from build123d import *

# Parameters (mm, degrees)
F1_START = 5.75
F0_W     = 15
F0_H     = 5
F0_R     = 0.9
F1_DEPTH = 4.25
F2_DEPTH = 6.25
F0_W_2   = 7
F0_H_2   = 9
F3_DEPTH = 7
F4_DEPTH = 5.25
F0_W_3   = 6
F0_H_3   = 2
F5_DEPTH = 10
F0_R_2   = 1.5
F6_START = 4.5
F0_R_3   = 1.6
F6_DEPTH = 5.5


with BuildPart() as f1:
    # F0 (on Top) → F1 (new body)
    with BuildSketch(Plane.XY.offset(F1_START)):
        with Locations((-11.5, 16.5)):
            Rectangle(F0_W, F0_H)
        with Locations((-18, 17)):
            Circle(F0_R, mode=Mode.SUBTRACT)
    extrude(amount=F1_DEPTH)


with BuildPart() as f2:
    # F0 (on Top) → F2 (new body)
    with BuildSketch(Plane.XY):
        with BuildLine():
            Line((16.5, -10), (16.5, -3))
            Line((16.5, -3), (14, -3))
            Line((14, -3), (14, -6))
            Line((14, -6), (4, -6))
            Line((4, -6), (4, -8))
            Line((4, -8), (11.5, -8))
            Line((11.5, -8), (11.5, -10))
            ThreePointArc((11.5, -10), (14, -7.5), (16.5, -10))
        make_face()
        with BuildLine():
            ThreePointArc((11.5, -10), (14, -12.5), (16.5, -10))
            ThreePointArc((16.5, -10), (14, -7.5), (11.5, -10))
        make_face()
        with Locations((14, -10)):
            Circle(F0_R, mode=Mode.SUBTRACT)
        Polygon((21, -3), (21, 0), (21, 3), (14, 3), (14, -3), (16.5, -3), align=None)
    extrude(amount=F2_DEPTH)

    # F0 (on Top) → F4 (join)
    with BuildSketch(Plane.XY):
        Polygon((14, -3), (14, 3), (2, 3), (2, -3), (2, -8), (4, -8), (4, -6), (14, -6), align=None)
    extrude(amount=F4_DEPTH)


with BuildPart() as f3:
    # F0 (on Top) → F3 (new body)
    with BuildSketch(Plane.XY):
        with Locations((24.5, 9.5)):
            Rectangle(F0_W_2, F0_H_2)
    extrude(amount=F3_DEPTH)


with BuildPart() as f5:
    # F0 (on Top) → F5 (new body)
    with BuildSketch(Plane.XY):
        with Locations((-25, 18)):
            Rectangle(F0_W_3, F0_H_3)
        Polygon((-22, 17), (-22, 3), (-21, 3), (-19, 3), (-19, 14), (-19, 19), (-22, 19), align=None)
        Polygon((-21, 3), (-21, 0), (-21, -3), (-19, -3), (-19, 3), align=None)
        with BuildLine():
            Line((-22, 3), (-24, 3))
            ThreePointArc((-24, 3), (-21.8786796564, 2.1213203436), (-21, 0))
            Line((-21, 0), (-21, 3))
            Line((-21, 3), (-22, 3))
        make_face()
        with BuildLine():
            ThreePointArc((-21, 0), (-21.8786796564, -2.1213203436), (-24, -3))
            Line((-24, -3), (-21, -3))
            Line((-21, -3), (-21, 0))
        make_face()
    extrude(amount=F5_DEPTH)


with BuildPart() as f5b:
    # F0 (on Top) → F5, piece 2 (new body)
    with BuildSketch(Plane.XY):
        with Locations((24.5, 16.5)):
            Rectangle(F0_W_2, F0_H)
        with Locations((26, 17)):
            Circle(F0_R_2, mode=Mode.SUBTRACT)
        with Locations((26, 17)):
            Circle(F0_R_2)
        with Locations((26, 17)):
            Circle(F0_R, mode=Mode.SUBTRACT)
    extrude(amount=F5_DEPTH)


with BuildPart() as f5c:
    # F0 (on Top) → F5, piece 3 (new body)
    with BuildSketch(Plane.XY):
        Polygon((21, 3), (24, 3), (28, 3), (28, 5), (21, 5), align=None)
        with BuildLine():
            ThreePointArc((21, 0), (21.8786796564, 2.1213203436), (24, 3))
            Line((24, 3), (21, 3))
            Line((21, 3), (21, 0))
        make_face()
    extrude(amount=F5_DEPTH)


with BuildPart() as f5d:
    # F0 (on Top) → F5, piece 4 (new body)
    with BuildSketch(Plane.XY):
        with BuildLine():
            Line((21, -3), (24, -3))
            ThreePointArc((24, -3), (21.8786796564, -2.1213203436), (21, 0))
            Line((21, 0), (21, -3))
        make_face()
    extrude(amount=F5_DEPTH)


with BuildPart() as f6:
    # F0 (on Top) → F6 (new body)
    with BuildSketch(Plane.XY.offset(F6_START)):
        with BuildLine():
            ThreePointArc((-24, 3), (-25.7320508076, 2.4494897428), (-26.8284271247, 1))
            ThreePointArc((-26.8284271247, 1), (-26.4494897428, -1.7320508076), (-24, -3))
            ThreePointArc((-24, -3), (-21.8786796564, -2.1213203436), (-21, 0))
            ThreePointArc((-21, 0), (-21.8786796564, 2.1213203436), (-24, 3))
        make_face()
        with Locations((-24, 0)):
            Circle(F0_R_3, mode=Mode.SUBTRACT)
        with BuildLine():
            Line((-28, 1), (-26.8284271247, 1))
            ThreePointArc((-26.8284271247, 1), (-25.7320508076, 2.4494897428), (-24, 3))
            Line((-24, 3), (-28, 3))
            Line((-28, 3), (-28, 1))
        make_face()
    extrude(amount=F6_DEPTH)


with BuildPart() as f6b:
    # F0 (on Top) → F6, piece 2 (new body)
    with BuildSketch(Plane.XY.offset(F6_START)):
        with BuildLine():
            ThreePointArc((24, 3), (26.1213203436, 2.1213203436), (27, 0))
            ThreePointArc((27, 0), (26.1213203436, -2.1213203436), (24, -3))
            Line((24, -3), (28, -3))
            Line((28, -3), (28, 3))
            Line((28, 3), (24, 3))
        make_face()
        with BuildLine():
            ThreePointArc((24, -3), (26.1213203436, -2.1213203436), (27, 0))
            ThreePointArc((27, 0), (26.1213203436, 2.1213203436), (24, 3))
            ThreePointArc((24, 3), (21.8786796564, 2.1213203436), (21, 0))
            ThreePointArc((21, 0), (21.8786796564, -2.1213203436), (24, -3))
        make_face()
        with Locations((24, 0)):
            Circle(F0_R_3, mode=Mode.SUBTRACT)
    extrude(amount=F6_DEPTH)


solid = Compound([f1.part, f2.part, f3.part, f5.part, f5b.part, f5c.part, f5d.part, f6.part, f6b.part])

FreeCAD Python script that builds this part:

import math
import FreeCAD as App
import Part
import Sketcher
Q = App.Units.Quantity

doc = App.newDocument("Part")
body = doc.addObject("PartDesign::Body", "Body")

# Sketch on XY plane
sketch1 = body.newObject("Sketcher::SketchObject", "Sketch")
sketch1.AttachmentSupport = (doc.getObject("XY_Plane"), [""])
sketch1.MapMode = "FlatFace"
sketch1.AttachmentOffset = App.Placement(App.Vector(0, 0, 5.75), App.Rotation())
sketch1.addGeometry([
    Part.LineSegment(App.Vector(-19, 19, 0), App.Vector(-19, 14, 0)),  # 0
    Part.LineSegment(App.Vector(-19, 14, 0), App.Vector(-4, 14, 0)),  # 1
    Part.LineSegment(App.Vector(-4, 14, 0), App.Vector(-4, 19, 0)),  # 2
    Part.LineSegment(App.Vector(-4, 19, 0), App.Vector(-19, 19, 0)),  # 3
    Part.Circle(App.Vector(-18, 17, 0), App.Vector(0, 0, 1), 0.9),  # 4
], False)
sketch1.addConstraint([
    Sketcher.Constraint("Coincident", 0, 2, 1, 1),
    Sketcher.Constraint("Coincident", 1, 2, 2, 1),
    Sketcher.Constraint("Coincident", 2, 2, 3, 1),
    Sketcher.Constraint("Coincident", 3, 2, 0, 1),
    Sketcher.Constraint("Vertical", 0),
    Sketcher.Constraint("Horizontal", 1),
    Sketcher.Constraint("Vertical", 2),
    Sketcher.Constraint("Horizontal", 3),
    Sketcher.Constraint("Diameter", 4, Q("1.8 mm")),
    Sketcher.Constraint("DistanceX", 1, 1, 1, 2, Q("15 mm")),
    Sketcher.Constraint("DistanceY", 0, 2, 0, 1, Q("5 mm")),
    Sketcher.Constraint("DistanceX", 4, 3, -1, 1, Q("18 mm")),
    Sketcher.Constraint("DistanceY", -1, 1, 4, 3, Q("17 mm")),
    Sketcher.Constraint("DistanceX", 0, 2, -1, 1, Q("19 mm")),
    Sketcher.Constraint("DistanceY", -1, 1, 0, 2, Q("14 mm")),
])
pad1 = body.newObject("PartDesign::Pad", "Pad")
pad1.Profile = sketch1
pad1.Length = 4.25
body2 = doc.addObject("PartDesign::Body", "Body001")

# Sketch on XY plane
sketch2 = body2.newObject("Sketcher::SketchObject", "Sketch001")
sketch2.AttachmentSupport = (doc.getObject("XY_Plane001"), [""])
sketch2.MapMode = "FlatFace"
sketch2.addGeometry([
    Part.LineSegment(App.Vector(16.5, -10, 0), App.Vector(16.5, -3, 0)),  # 0
    Part.LineSegment(App.Vector(16.5, -3, 0), App.Vector(21, -3, 0)),  # 1
    Part.LineSegment(App.Vector(21, -3, 0), App.Vector(21, 3, 0)),  # 2
    Part.LineSegment(App.Vector(21, 3, 0), App.Vector(14, 3, 0)),  # 3
    Part.LineSegment(App.Vector(14, 3, 0), App.Vector(14, -6, 0)),  # 4
    Part.LineSegment(App.Vector(14, -6, 0), App.Vector(4, -6, 0)),  # 5
    Part.LineSegment(App.Vector(4, -6, 0), App.Vector(4, -8, 0)),  # 6
    Part.LineSegment(App.Vector(4, -8, 0), App.Vector(11.5, -8, 0)),  # 7
    Part.LineSegment(App.Vector(11.5, -8, 0), App.Vector(11.5, -10, 0)),  # 8
    Part.ArcOfCircle(Part.Circle(App.Vector(14, -10, 0), App.Vector(0, 0, 1), 2.5), math.radians(180), math.radians(360)),  # 9
    Part.Circle(App.Vector(14, -10, 0), App.Vector(0, 0, 1), 0.9),  # 10
], False)
sketch2.addConstraint([
    Sketcher.Constraint("Coincident", 0, 2, 1, 1),
    Sketcher.Constraint("Coincident", 1, 2, 2, 1),
    Sketcher.Constraint("Coincident", 2, 2, 3, 1),
    Sketcher.Constraint("Coincident", 3, 2, 4, 1),
    Sketcher.Constraint("Coincident", 4, 2, 5, 1),
    Sketcher.Constraint("Coincident", 5, 2, 6, 1),
    Sketcher.Constraint("Coincident", 6, 2, 7, 1),
    Sketcher.Constraint("Coincident", 7, 2, 8, 1),
    Sketcher.Constraint("Tangent", 8, 2, 9, 1),
    Sketcher.Constraint("Tangent", 9, 2, 0, 1),
    Sketcher.Constraint("Vertical", 0),
    Sketcher.Constraint("Horizontal", 1),
    Sketcher.Constraint("Vertical", 2),
    Sketcher.Constraint("Horizontal", 3),
    Sketcher.Constraint("Vertical", 4),
    Sketcher.Constraint("Horizontal", 5),
    Sketcher.Constraint("Vertical", 6),
    Sketcher.Constraint("Horizontal", 7),
    Sketcher.Constraint("Vertical", 8),
    Sketcher.Constraint("Coincident", 10, 3, 9, 3),
    Sketcher.Constraint("Vertical", 10, 3, 3, 2),
    Sketcher.Constraint("Equal", 3, 0),
    Sketcher.Constraint("Equal", 6, 8),
    Sketcher.Constraint("Diameter", 10, Q("1.8 mm")),
    Sketcher.Constraint("Radius", 9, Q("2.5 mm")),
    Sketcher.Constraint("DistanceX", 3, 2, 3, 1, Q("7 mm")),
    Sketcher.Constraint("DistanceX", 5, 2, 5, 1, Q("10 mm")),
    Sketcher.Constraint("DistanceY", 2, 1, 2, 2, Q("6 mm")),
    Sketcher.Constraint("DistanceY", 4, 2, 4, 1, Q("9 mm")),
    Sketcher.Constraint("DistanceX", -1, 1, 9, 3, Q("14 mm")),
    Sketcher.Constraint("DistanceY", 9, 3, -1, 1, Q("10 mm")),
])
pad2 = body2.newObject("PartDesign::Pad", "Pad001")
pad2.Profile = sketch2
pad2.Length = 6.25

# Sketch on XY plane
sketch3 = body2.newObject("Sketcher::SketchObject", "Sketch002")
sketch3.AttachmentSupport = (doc.getObject("XY_Plane001"), [""])
sketch3.MapMode = "FlatFace"
sketch3.addGeometry([
    Part.LineSegment(App.Vector(14, 3, 0), App.Vector(2, 3, 0)),  # 0
    Part.LineSegment(App.Vector(2, 3, 0), App.Vector(2, -8, 0)),  # 1
    Part.LineSegment(App.Vector(2, -8, 0), App.Vector(4, -8, 0)),  # 2
    Part.LineSegment(App.Vector(4, -8, 0), App.Vector(4, -6, 0)),  # 3
    Part.LineSegment(App.Vector(4, -6, 0), App.Vector(14, -6, 0)),  # 4
    Part.LineSegment(App.Vector(14, -6, 0), App.Vector(14, 3, 0)),  # 5
], False)
sketch3.addConstraint([
    Sketcher.Constraint("Coincident", 0, 2, 1, 1),
    Sketcher.Constraint("Coincident", 1, 2, 2, 1),
    Sketcher.Constraint("Coincident", 2, 2, 3, 1),
    Sketcher.Constraint("Coincident", 3, 2, 4, 1),
    Sketcher.Constraint("Coincident", 4, 2, 5, 1),
    Sketcher.Constraint("Coincident", 5, 2, 0, 1),
    Sketcher.Constraint("Horizontal", 0),
    Sketcher.Constraint("Vertical", 1),
    Sketcher.Constraint("Horizontal", 2),
    Sketcher.Constraint("Vertical", 3),
    Sketcher.Constraint("Horizontal", 4),
    Sketcher.Constraint("Vertical", 5),
    Sketcher.Constraint("Equal", 2, 3),
    Sketcher.Constraint("DistanceX", 0, 2, 0, 1, Q("12 mm")),
    Sketcher.Constraint("DistanceX", 2, 1, 2, 2, Q("2 mm")),
    Sketcher.Constraint("DistanceY", 1, 2, 1, 1, Q("11 mm")),
    Sketcher.Constraint("DistanceX", -1, 1, 0, 2, Q("2 mm")),
    Sketcher.Constraint("DistanceY", -1, 1, 0, 2, Q("3 mm")),
])
pad3 = body2.newObject("PartDesign::Pad", "Pad002")
pad3.Profile = sketch3
pad3.Length = 5.25
body3 = doc.addObject("PartDesign::Body", "Body002")

# Sketch on XY plane
sketch4 = body3.newObject("Sketcher::SketchObject", "Sketch003")
sketch4.AttachmentSupport = (doc.getObject("XY_Plane002"), [""])
sketch4.MapMode = "FlatFace"
sketch4.addGeometry([
    Part.LineSegment(App.Vector(21, 14, 0), App.Vector(21, 5, 0)),
    Part.LineSegment(App.Vector(21, 5, 0), App.Vector(28, 5, 0)),
    Part.LineSegment(App.Vector(28, 5, 0), App.Vector(28, 14, 0)),
    Part.LineSegment(App.Vector(28, 14, 0), App.Vector(21, 14, 0)),
], False)
sketch4.addConstraint([
    Sketcher.Constraint("Coincident", 0, 2, 1, 1),
    Sketcher.Constraint("Coincident", 1, 2, 2, 1),
    Sketcher.Constraint("Coincident", 2, 2, 3, 1),
    Sketcher.Constraint("Coincident", 3, 2, 0, 1),
    Sketcher.Constraint("Vertical", 0),
    Sketcher.Constraint("Horizontal", 1),
    Sketcher.Constraint("Vertical", 2),
    Sketcher.Constraint("Horizontal", 3),
    Sketcher.Constraint("DistanceX", 1, 1, 1, 2, Q("7 mm")),
    Sketcher.Constraint("DistanceY", 0, 2, 0, 1, Q("9 mm")),
    Sketcher.Constraint("DistanceX", -1, 1, 0, 2, Q("21 mm")),
    Sketcher.Constraint("DistanceY", -1, 1, 0, 2, Q("5 mm")),
])
pad4 = body3.newObject("PartDesign::Pad", "Pad003")
pad4.Profile = sketch4
pad4.Length = 7
body4 = doc.addObject("PartDesign::Body", "Body003")

# Sketch on XY plane
sketch5 = body4.newObject("Sketcher::SketchObject", "Sketch004")
sketch5.AttachmentSupport = (doc.getObject("XY_Plane003"), [""])
sketch5.MapMode = "FlatFace"
sketch5.addGeometry([
    Part.LineSegment(App.Vector(-28, 19, 0), App.Vector(-28, 17, 0)),  # 0
    Part.LineSegment(App.Vector(-28, 17, 0), App.Vector(-22, 17, 0)),  # 1
    Part.LineSegment(App.Vector(-22, 17, 0), App.Vector(-22, 3, 0)),  # 2
    Part.LineSegment(App.Vector(-22, 3, 0), App.Vector(-24, 3, 0)),  # 3
    Part.ArcOfCircle(Part.Circle(App.Vector(-24, 0, 0), App.Vector(0, 0, 1), 3), math.radians(0), math.radians(90)),  # 4
    Part.ArcOfCircle(Part.Circle(App.Vector(-24, 0, 0), App.Vector(0, 0, 1), 3), math.radians(-90), math.radians(0)),  # 5
    Part.LineSegment(App.Vector(-24, -3, 0), App.Vector(-19, -3, 0)),  # 6
    Part.LineSegment(App.Vector(-19, -3, 0), App.Vector(-19, 19, 0)),  # 7
    Part.LineSegment(App.Vector(-19, 19, 0), App.Vector(-28, 19, 0)),  # 8
], False)
sketch5.addConstraint([
    Sketcher.Constraint("Coincident", 0, 2, 1, 1),
    Sketcher.Constraint("Coincident", 1, 2, 2, 1),
    Sketcher.Constraint("Coincident", 2, 2, 3, 1),
    Sketcher.Constraint("Tangent", 3, 2, 4, 2),
    Sketcher.Constraint("Tangent", 4, 1, 5, 2),
    Sketcher.Constraint("Tangent", 5, 1, 6, 1),
    Sketcher.Constraint("Coincident", 6, 2, 7, 1),
    Sketcher.Constraint("Coincident", 7, 2, 8, 1),
    Sketcher.Constraint("Coincident", 8, 2, 0, 1),
    Sketcher.Constraint("Vertical", 0),
    Sketcher.Constraint("Horizontal", 1),
    Sketcher.Constraint("Vertical", 2),
    Sketcher.Constraint("Horizontal", 3),
    Sketcher.Constraint("Horizontal", 6),
    Sketcher.Constraint("Vertical", 7),
    Sketcher.Constraint("Horizontal", 8),
    Sketcher.Constraint("Equal", 4, 5),
    Sketcher.Constraint("PointOnObject", 4, 3, -1),
    Sketcher.Constraint("PointOnObject", 4, 1, -1),
    Sketcher.Constraint("Equal", 3, 0),
    Sketcher.Constraint("Radius", 4, Q("3 mm")),
    Sketcher.Constraint("DistanceX", 1, 1, 1, 2, Q("6 mm")),
    Sketcher.Constraint("DistanceX", 3, 2, 3, 1, Q("2 mm")),
    Sketcher.Constraint("DistanceX", 6, 1, 6, 2, Q("5 mm")),
    Sketcher.Constraint("DistanceY", 2, 2, 2, 1, Q("14 mm")),
    Sketcher.Constraint("DistanceX", 4, 3, -1, 1, Q("24 mm")),
])
pad5 = body4.newObject("PartDesign::Pad", "Pad004")
pad5.Profile = sketch5
pad5.Length = 10
body5 = doc.addObject("PartDesign::Body", "Body004")

# Sketch on XY plane
sketch6 = body5.newObject("Sketcher::SketchObject", "Sketch005")
sketch6.AttachmentSupport = (doc.getObject("XY_Plane004"), [""])
sketch6.MapMode = "FlatFace"
sketch6.addGeometry([
    Part.LineSegment(App.Vector(21, 19, 0), App.Vector(21, 14, 0)),  # 0
    Part.LineSegment(App.Vector(21, 14, 0), App.Vector(28, 14, 0)),  # 1
    Part.LineSegment(App.Vector(28, 14, 0), App.Vector(28, 19, 0)),  # 2
    Part.LineSegment(App.Vector(28, 19, 0), App.Vector(21, 19, 0)),  # 3
    Part.Circle(App.Vector(26, 17, 0), App.Vector(0, 0, 1), 0.9),  # 4
], False)
sketch6.addConstraint([
    Sketcher.Constraint("Coincident", 0, 2, 1, 1),
    Sketcher.Constraint("Coincident", 1, 2, 2, 1),
    Sketcher.Constraint("Coincident", 2, 2, 3, 1),
    Sketcher.Constraint("Coincident", 3, 2, 0, 1),
    Sketcher.Constraint("Vertical", 0),
    Sketcher.Constraint("Horizontal", 1),
    Sketcher.Constraint("Vertical", 2),
    Sketcher.Constraint("Horizontal", 3),
    Sketcher.Constraint("Diameter", 4, Q("1.8 mm")),
    Sketcher.Constraint("DistanceX", 1, 1, 1, 2, Q("7 mm")),
    Sketcher.Constraint("DistanceY", 0, 2, 0, 1, Q("5 mm")),
    Sketcher.Constraint("DistanceX", -1, 1, 4, 3, Q("26 mm")),
    Sketcher.Constraint("DistanceY", -1, 1, 4, 3, Q("17 mm")),
    Sketcher.Constraint("DistanceX", -1, 1, 0, 2, Q("21 mm")),
    Sketcher.Constraint("DistanceY", -1, 1, 0, 2, Q("14 mm")),
])
pad6 = body5.newObject("PartDesign::Pad", "Pad005")
pad6.Profile = sketch6
pad6.Length = 10
body6 = doc.addObject("PartDesign::Body", "Body005")

# Sketch on XY plane
sketch7 = body6.newObject("Sketcher::SketchObject", "Sketch006")
sketch7.AttachmentSupport = (doc.getObject("XY_Plane005"), [""])
sketch7.MapMode = "FlatFace"
sketch7.addGeometry([
    Part.LineSegment(App.Vector(24, 3, 0), App.Vector(28, 3, 0)),  # 0
    Part.LineSegment(App.Vector(28, 3, 0), App.Vector(28, 5, 0)),  # 1
    Part.LineSegment(App.Vector(28, 5, 0), App.Vector(21, 5, 0)),  # 2
    Part.LineSegment(App.Vector(21, 5, 0), App.Vector(21, 0, 0)),  # 3
    Part.ArcOfCircle(Part.Circle(App.Vector(24, 0, 0), App.Vector(0, 0, 1), 3), math.radians(90), math.radians(180)),  # 4
], False)
sketch7.addConstraint([
    Sketcher.Constraint("Coincident", 0, 2, 1, 1),
    Sketcher.Constraint("Coincident", 1, 2, 2, 1),
    Sketcher.Constraint("Coincident", 2, 2, 3, 1),
    Sketcher.Constraint("Tangent", 3, 2, 4, 2),
    Sketcher.Constraint("Tangent", 4, 1, 0, 1),
    Sketcher.Constraint("Horizontal", 0),
    Sketcher.Constraint("Vertical", 1),
    Sketcher.Constraint("Horizontal", 2),
    Sketcher.Constraint("Vertical", 3),
    Sketcher.Constraint("PointOnObject", 4, 3, -1),
    Sketcher.Constraint("Radius", 4, Q("3 mm")),
    Sketcher.Constraint("DistanceX", 0, 1, 0, 2, Q("4 mm")),
    Sketcher.Constraint("DistanceY", 1, 1, 1, 2, Q("2 mm")),
    Sketcher.Constraint("DistanceX", -1, 1, 4, 3, Q("24 mm")),
])
pad7 = body6.newObject("PartDesign::Pad", "Pad006")
pad7.Profile = sketch7
pad7.Length = 10
body7 = doc.addObject("PartDesign::Body", "Body006")

# Sketch on XY plane
sketch8 = body7.newObject("Sketcher::SketchObject", "Sketch007")
sketch8.AttachmentSupport = (doc.getObject("XY_Plane006"), [""])
sketch8.MapMode = "FlatFace"
sketch8.addGeometry([
    Part.LineSegment(App.Vector(21, -3, 0), App.Vector(24, -3, 0)),
    Part.ArcOfCircle(Part.Circle(App.Vector(24, 0, 0), App.Vector(0, 0, 1), 3), math.radians(180), math.radians(270)),
    Part.LineSegment(App.Vector(21, 0, 0), App.Vector(21, -3, 0)),
], False)
sketch8.addConstraint([
    Sketcher.Constraint("Tangent", 0, 2, 1, 2),
    Sketcher.Constraint("Tangent", 1, 1, 2, 1),
    Sketcher.Constraint("Coincident", 2, 2, 0, 1),
    Sketcher.Constraint("Horizontal", 0),
    Sketcher.Constraint("Vertical", 2),
    Sketcher.Constraint("PointOnObject", 1, 3, -1),
    Sketcher.Constraint("Radius", 1, Q("3 mm")),
    Sketcher.Constraint("DistanceX", -1, 1, 1, 3, Q("24 mm")),
])
pad8 = body7.newObject("PartDesign::Pad", "Pad007")
pad8.Profile = sketch8
pad8.Length = 10
body8 = doc.addObject("PartDesign::Body", "Body007")

# Sketch on XY plane
sketch9 = body8.newObject("Sketcher::SketchObject", "Sketch008")
sketch9.AttachmentSupport = (doc.getObject("XY_Plane007"), [""])
sketch9.MapMode = "FlatFace"
sketch9.AttachmentOffset = App.Placement(App.Vector(0, 0, 4.5), App.Rotation())
sketch9.addGeometry([
    Part.ArcOfCircle(Part.Circle(App.Vector(-24, 0, 0), App.Vector(0, 0, 1), 3), math.radians(0), math.radians(90)),  # 0
    Part.LineSegment(App.Vector(-24, 3, 0), App.Vector(-28, 3, 0)),  # 1
    Part.LineSegment(App.Vector(-28, 3, 0), App.Vector(-28, 1, 0)),  # 2
    Part.LineSegment(App.Vector(-28, 1, 0), App.Vector(-26.8, 1, 0)),  # 3
    Part.ArcOfCircle(Part.Circle(App.Vector(-24, 0, 0), App.Vector(0, 0, 1), 3), math.radians(161), math.radians(270)),  # 4
    Part.ArcOfCircle(Part.Circle(App.Vector(-24, 0, 0), App.Vector(0, 0, 1), 3), math.radians(-90), math.radians(0)),  # 5
    Part.Circle(App.Vector(-24, 0, 0), App.Vector(0, 0, 1), 1.6),  # 6
], False)
sketch9.addConstraint([
    Sketcher.Constraint("Tangent", 0, 2, 1, 1),
    Sketcher.Constraint("Coincident", 1, 2, 2, 1),
    Sketcher.Constraint("Coincident", 2, 2, 3, 1),
    Sketcher.Constraint("Coincident", 3, 2, 4, 1),
    Sketcher.Constraint("Tangent", 4, 2, 5, 1),
    Sketcher.Constraint("Tangent", 5, 2, 0, 1),
    Sketcher.Constraint("Horizontal", 1),
    Sketcher.Constraint("Vertical", 2),
    Sketcher.Constraint("Horizontal", 3),
    Sketcher.Constraint("Coincident", 4, 3, 0, 3),
    Sketcher.Constraint("Coincident", 6, 3, 0, 3),
    Sketcher.Constraint("Symmetric", 0, 2, 4, 2, -1),
    Sketcher.Constraint("PointOnObject", 5, 2, -1),
    Sketcher.Constraint("Radius", 0, Q("3 mm")),
    Sketcher.Constraint("Diameter", 6, Q("3.2 mm")),
    Sketcher.Constraint("DistanceX", 1, 2, 1, 1, Q("4 mm")),
    Sketcher.Constraint("DistanceY", 2, 2, 2, 1, Q("2 mm")),
    Sketcher.Constraint("DistanceX", 0, 3, -1, 1, Q("24 mm")),
])
pad9 = body8.newObject("PartDesign::Pad", "Pad008")
pad9.Profile = sketch9
pad9.Length = 5.5
body9 = doc.addObject("PartDesign::Body", "Body008")

# Sketch on XY plane
sketch10 = body9.newObject("Sketcher::SketchObject", "Sketch009")
sketch10.AttachmentSupport = (doc.getObject("XY_Plane008"), [""])
sketch10.MapMode = "FlatFace"
sketch10.AttachmentOffset = App.Placement(App.Vector(0, 0, 4.5), App.Rotation())
sketch10.addGeometry([
    Part.LineSegment(App.Vector(24, -3, 0), App.Vector(28, -3, 0)),  # 0
    Part.LineSegment(App.Vector(28, -3, 0), App.Vector(28, 3, 0)),  # 1
    Part.LineSegment(App.Vector(28, 3, 0), App.Vector(24, 3, 0)),  # 2
    Part.ArcOfCircle(Part.Circle(App.Vector(24, 0, 0), App.Vector(0, 0, 1), 3), math.radians(90), math.radians(180)),  # 3
    Part.ArcOfCircle(Part.Circle(App.Vector(24, 0, 0), App.Vector(0, 0, 1), 3), math.radians(180), math.radians(270)),  # 4
    Part.Circle(App.Vector(24, 0, 0), App.Vector(0, 0, 1), 1.6),  # 5
], False)
sketch10.addConstraint([
    Sketcher.Constraint("Coincident", 0, 2, 1, 1),
    Sketcher.Constraint("Coincident", 1, 2, 2, 1),
    Sketcher.Constraint("Tangent", 2, 2, 3, 1),
    Sketcher.Constraint("Tangent", 3, 2, 4, 1),
    Sketcher.Constraint("Tangent", 4, 2, 0, 1),
    Sketcher.Constraint("Horizontal", 0),
    Sketcher.Constraint("Vertical", 1),
    Sketcher.Constraint("Horizontal", 2),
    Sketcher.Constraint("Coincident", 5, 3, 3, 3),
    Sketcher.Constraint("Equal", 3, 4),
    Sketcher.Constraint("PointOnObject", 3, 3, -1),
    Sketcher.Constraint("PointOnObject", 3, 2, -1),
    Sketcher.Constraint("Radius", 3, Q("3 mm")),
    Sketcher.Constraint("Diameter", 5, Q("3.2 mm")),
    Sketcher.Constraint("DistanceX", 0, 1, 0, 2, Q("4 mm")),
    Sketcher.Constraint("DistanceX", -1, 1, 3, 3, Q("24 mm")),
])
pad10 = body9.newObject("PartDesign::Pad", "Pad009")
pad10.Profile = sketch10
pad10.Length = 5.5

doc.recompute()
